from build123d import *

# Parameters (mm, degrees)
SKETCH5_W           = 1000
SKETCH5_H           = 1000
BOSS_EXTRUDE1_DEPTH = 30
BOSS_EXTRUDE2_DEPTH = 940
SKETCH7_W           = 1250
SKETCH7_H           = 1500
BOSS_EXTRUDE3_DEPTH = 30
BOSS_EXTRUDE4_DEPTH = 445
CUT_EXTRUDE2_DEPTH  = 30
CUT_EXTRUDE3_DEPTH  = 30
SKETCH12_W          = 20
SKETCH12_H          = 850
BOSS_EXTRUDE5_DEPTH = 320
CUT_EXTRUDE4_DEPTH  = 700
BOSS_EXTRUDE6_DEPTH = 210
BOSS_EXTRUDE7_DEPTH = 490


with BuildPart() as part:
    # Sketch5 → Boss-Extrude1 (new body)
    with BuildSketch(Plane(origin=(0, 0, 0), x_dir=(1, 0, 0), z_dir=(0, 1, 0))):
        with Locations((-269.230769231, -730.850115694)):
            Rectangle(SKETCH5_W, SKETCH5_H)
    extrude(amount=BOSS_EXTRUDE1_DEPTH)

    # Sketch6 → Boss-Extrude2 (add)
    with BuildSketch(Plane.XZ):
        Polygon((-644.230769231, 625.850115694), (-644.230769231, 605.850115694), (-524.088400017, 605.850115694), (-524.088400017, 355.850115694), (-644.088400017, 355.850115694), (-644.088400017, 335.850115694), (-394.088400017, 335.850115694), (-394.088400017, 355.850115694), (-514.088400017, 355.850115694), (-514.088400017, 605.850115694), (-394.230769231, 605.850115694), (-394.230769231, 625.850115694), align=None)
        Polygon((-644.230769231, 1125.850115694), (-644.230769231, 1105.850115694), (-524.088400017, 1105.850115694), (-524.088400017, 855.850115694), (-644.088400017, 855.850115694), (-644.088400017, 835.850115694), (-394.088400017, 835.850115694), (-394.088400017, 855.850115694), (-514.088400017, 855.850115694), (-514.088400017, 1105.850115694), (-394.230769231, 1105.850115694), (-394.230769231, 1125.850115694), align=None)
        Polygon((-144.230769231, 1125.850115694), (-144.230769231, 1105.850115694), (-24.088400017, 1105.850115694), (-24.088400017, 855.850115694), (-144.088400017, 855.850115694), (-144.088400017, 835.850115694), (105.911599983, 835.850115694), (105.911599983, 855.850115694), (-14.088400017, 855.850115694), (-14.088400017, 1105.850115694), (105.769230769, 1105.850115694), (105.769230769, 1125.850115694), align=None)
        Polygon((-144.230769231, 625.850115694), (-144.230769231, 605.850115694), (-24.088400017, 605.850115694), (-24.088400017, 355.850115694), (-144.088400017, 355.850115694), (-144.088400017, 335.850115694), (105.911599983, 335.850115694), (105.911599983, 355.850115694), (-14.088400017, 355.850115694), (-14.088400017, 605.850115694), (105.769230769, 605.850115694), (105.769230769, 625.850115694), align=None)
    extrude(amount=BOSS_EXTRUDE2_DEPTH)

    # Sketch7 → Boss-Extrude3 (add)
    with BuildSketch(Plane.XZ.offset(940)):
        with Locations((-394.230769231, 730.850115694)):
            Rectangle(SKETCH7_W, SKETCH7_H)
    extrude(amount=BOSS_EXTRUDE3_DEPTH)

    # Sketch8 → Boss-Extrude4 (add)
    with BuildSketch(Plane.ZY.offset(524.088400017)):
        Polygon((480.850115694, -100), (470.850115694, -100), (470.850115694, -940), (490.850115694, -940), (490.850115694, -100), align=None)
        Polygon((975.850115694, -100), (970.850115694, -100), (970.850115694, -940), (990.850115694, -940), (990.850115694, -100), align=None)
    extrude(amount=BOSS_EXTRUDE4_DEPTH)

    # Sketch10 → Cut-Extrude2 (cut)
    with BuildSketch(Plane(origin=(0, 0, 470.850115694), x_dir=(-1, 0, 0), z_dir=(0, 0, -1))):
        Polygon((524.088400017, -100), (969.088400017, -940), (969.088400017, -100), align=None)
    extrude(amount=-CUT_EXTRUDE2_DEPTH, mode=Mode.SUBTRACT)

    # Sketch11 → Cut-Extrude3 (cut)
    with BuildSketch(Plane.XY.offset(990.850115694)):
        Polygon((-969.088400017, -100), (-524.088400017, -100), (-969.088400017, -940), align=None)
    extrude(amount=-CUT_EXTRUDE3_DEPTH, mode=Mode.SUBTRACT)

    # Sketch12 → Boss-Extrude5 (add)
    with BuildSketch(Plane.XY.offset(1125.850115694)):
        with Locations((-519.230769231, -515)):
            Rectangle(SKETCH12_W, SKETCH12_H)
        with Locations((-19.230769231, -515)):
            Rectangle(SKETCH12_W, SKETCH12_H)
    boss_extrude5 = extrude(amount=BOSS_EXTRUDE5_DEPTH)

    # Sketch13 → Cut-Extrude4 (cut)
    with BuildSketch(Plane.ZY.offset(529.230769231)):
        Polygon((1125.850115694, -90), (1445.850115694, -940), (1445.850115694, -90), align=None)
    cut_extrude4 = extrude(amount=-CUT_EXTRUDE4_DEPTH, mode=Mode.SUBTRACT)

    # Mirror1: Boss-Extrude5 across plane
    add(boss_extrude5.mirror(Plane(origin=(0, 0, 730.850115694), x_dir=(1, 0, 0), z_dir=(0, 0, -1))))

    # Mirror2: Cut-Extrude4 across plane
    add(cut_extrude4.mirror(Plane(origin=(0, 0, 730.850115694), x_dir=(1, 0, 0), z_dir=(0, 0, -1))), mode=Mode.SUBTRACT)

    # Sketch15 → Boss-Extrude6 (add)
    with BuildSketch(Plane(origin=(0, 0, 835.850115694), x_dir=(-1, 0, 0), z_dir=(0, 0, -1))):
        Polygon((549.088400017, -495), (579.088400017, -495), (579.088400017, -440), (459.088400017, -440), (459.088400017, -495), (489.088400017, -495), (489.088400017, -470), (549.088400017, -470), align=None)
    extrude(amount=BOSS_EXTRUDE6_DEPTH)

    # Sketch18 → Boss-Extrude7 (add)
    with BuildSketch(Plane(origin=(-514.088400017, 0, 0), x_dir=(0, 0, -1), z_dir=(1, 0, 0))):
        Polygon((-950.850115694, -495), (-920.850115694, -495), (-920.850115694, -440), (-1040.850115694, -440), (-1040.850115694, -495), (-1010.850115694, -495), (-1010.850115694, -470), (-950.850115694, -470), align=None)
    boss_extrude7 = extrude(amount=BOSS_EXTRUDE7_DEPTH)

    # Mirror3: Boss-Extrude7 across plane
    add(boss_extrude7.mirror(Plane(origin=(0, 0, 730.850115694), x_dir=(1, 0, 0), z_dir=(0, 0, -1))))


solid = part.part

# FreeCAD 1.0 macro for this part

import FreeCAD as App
import Part
import Sketcher
from FreeCAD import Vector
Q = App.Units.Quantity

doc = App.newDocument("Part")
body = doc.addObject("PartDesign::Body", "Body")

# Sketch on XZ plane
sketch1 = body.newObject("Sketcher::SketchObject", "Sketch")
sketch1.AttachmentSupport = (doc.getObject("XZ_Plane"), [""])
sketch1.MapMode = "FlatFace"
sketch1.addGeometry(Part.LineSegment(Vector(-769.230769, 230.850116, 0), Vector(-769.230769, 1230.850116, 0)), False)
sketch1.addGeometry(Part.LineSegment(Vector(-769.230769, 1230.850116, 0), Vector(230.769231, 1230.850116, 0)), False)
sketch1.addGeometry(Part.LineSegment(Vector(230.769231, 1230.850116, 0), Vector(230.769231, 230.850116, 0)), False)
sketch1.addGeometry(Part.LineSegment(Vector(230.769231, 230.850116, 0), Vector(-769.230769, 230.850116, 0)), False)
sketch1.addConstraint(Sketcher.Constraint("Coincident", 0, 2, 1, 1))
sketch1.addConstraint(Sketcher.Constraint("Coincident", 1, 2, 2, 1))
sketch1.addConstraint(Sketcher.Constraint("Coincident", 2, 2, 3, 1))
sketch1.addConstraint(Sketcher.Constraint("Coincident", 3, 2, 0, 1))
sketch1.addConstraint(Sketcher.Constraint("Vertical", 0))
sketch1.addConstraint(Sketcher.Constraint("Horizontal", 1))
sketch1.addConstraint(Sketcher.Constraint("Vertical", 2))
sketch1.addConstraint(Sketcher.Constraint("Horizontal", 3))
sketch1.addConstraint(Sketcher.Constraint("Equal", 3, 0))
sketch1.addConstraint(Sketcher.Constraint("DistanceX", 1, 1, 1, 2, Q("1000 mm")))
sketch1.addConstraint(Sketcher.Constraint("DistanceX", 0, 2, -1, 1, Q("769.230769 mm")))
sketch1.addConstraint(Sketcher.Constraint("DistanceY", -1, 1, 0, 2, Q("1230.850116 mm")))
pad1 = body.newObject("PartDesign::Pad", "Pad")
pad1.Profile = sketch1
pad1.Length = 30
pad1.Reversed = True

# Sketch on XZ plane
sketch2 = body.newObject("Sketcher::SketchObject", "Sketch001")
sketch2.AttachmentSupport = (doc.getObject("XZ_Plane"), [""])
sketch2.MapMode = "FlatFace"
sketch2.addGeometry(Part.LineSegment(Vector(-644.230769, 625.850116, 0), Vector(-644.230769, 605.850116, 0)), False)
sketch2.addGeometry(Part.LineSegment(Vector(-644.230769, 605.850116, 0), Vector(-524.0884, 605.850116, 0)), False)
sketch2.addGeometry(Part.LineSegment(Vector(-524.0884, 605.850116, 0), Vector(-524.0884, 355.850116, 0)), False)
sketch2.addGeometry(Part.LineSegment(Vector(-524.0884, 355.850116, 0), Vector(-644.0884, 355.850116, 0)), False)
sketch2.addGeometry(Part.LineSegment(Vector(-644.0884, 355.850116, 0), Vector(-644.0884, 335.850116, 0)), False)
sketch2.addGeometry(Part.LineSegment(Vector(-644.0884, 335.850116, 0), Vector(-394.0884, 335.850116, 0)), False)
sketch2.addGeometry(Part.LineSegment(Vector(-394.0884, 335.850116, 0), Vector(-394.0884, 355.850116, 0)), False)
sketch2.addGeometry(Part.LineSegment(Vector(-394.0884, 355.850116, 0), Vector(-514.0884, 355.850116, 0)), False)
sketch2.addGeometry(Part.LineSegment(Vector(-514.0884, 355.850116, 0), Vector(-514.0884, 605.850116, 0)), False)
sketch2.addGeometry(Part.LineSegment(Vector(-514.0884, 605.850116, 0), Vector(-394.230769, 605.850116, 0)), False)
sketch2.addGeometry(Part.LineSegment(Vector(-394.230769, 605.850116, 0), Vector(-394.230769, 625.850116, 0)), False)
sketch2.addGeometry(Part.LineSegment(Vector(-394.230769, 625.850116, 0), Vector(-644.230769, 625.850116, 0)), False)
sketch2.addGeometry(Part.LineSegment(Vector(-644.230769, 1125.850116, 0), Vector(-644.230769, 1105.850116, 0)), False)
sketch2.addGeometry(Part.LineSegment(Vector(-644.230769, 1105.850116, 0), Vector(-524.0884, 1105.850116, 0)), False)
sketch2.addGeometry(Part.LineSegment(Vector(-524.0884, 1105.850116, 0), Vector(-524.0884, 855.850116, 0)), False)
sketch2.addGeometry(Part.LineSegment(Vector(-524.0884, 855.850116, 0), Vector(-644.0884, 855.850116, 0)), False)
sketch2.addGeometry(Part.LineSegment(Vector(-644.0884, 855.850116, 0), Vector(-644.0884, 835.850116, 0)), False)
sketch2.addGeometry(Part.LineSegment(Vector(-644.0884, 835.850116, 0), Vector(-394.0884, 835.850116, 0)), False)
sketch2.addGeometry(Part.LineSegment(Vector(-394.0884, 835.850116, 0), Vector(-394.0884, 855.850116, 0)), False)
sketch2.addGeometry(Part.LineSegment(Vector(-394.0884, 855.850116, 0), Vector(-514.0884, 855.850116, 0)), False)
sketch2.addGeometry(Part.LineSegment(Vector(-514.0884, 855.850116, 0), Vector(-514.0884, 1105.850116, 0)), False)
sketch2.addGeometry(Part.LineSegment(Vector(-514.0884, 1105.850116, 0), Vector(-394.230769, 1105.850116, 0)), False)
sketch2.addGeometry(Part.LineSegment(Vector(-394.230769, 1105.850116, 0), Vector(-394.230769, 1125.850116, 0)), False)
sketch2.addGeometry(Part.LineSegment(Vector(-394.230769, 1125.850116, 0), Vector(-644.230769, 1125.850116, 0)), False)
sketch2.addGeometry(Part.LineSegment(Vector(-144.230769, 1125.850116, 0), Vector(-144.230769, 1105.850116, 0)), False)
sketch2.addGeometry(Part.LineSegment(Vector(-144.230769, 1105.850116, 0), Vector(-24.0884, 1105.850116, 0)), False)
sketch2.addGeometry(Part.LineSegment(Vector(-24.0884, 1105.850116, 0), Vector(-24.0884, 855.850116, 0)), False)
sketch2.addGeometry(Part.LineSegment(Vector(-24.0884, 855.850116, 0), Vector(-144.0884, 855.850116, 0)), False)
sketch2.addGeometry(Part.LineSegment(Vector(-144.0884, 855.850116, 0), Vector(-144.0884, 835.850116, 0)), False)
sketch2.addGeometry(Part.LineSegment(Vector(-144.0884, 835.850116, 0), Vector(105.9116, 835.850116, 0)), False)
sketch2.addGeometry(Part.LineSegment(Vector(105.9116, 835.850116, 0), Vector(105.9116, 855.850116, 0)), False)
sketch2.addGeometry(Part.LineSegment(Vector(105.9116, 855.850116, 0), Vector(-14.0884, 855.850116, 0)), False)
sketch2.addGeometry(Part.LineSegment(Vector(-14.0884, 855.850116, 0), Vector(-14.0884, 1105.850116, 0)), False)
sketch2.addGeometry(Part.LineSegment(Vector(-14.0884, 1105.850116, 0), Vector(105.769231, 1105.850116, 0)), False)
sketch2.addGeometry(Part.LineSegment(Vector(105.769231, 1105.850116, 0), Vector(105.769231, 1125.850116, 0)), False)
sketch2.addGeometry(Part.LineSegment(Vector(105.769231, 1125.850116, 0), Vector(-144.230769, 1125.850116, 0)), False)
sketch2.addGeometry(Part.LineSegment(Vector(-144.230769, 625.850116, 0), Vector(-144.230769, 605.850116, 0)), False)
sketch2.addGeometry(Part.LineSegment(Vector(-144.230769, 605.850116, 0), Vector(-24.0884, 605.850116, 0)), False)
sketch2.addGeometry(Part.LineSegment(Vector(-24.0884, 605.850116, 0), Vector(-24.0884, 355.850116, 0)), False)
sketch2.addGeometry(Part.LineSegment(Vector(-24.0884, 355.850116, 0), Vector(-144.0884, 355.850116, 0)), False)
sketch2.addGeometry(Part.LineSegment(Vector(-144.0884, 355.850116, 0), Vector(-144.0884, 335.850116, 0)), False)
sketch2.addGeometry(Part.LineSegment(Vector(-144.0884, 335.850116, 0), Vector(105.9116, 335.850116, 0)), False)
sketch2.addGeometry(Part.LineSegment(Vector(105.9116, 335.850116, 0), Vector(105.9116, 355.850116, 0)), False)
sketch2.addGeometry(Part.LineSegment(Vector(105.9116, 355.850116, 0), Vector(-14.0884, 355.850116, 0)), False)
sketch2.addGeometry(Part.LineSegment(Vector(-14.0884, 355.850116, 0), Vector(-14.0884, 605.850116, 0)), False)
sketch2.addGeometry(Part.LineSegment(Vector(-14.0884, 605.850116, 0), Vector(105.769231, 605.850116, 0)), False)
sketch2.addGeometry(Part.LineSegment(Vector(105.769231, 605.850116, 0), Vector(105.769231, 625.850116, 0)), False)
sketch2.addGeometry(Part.LineSegment(Vector(105.769231, 625.850116, 0), Vector(-144.230769, 625.850116, 0)), False)
sketch2.addConstraint(Sketcher.Constraint("Coincident", 0, 2, 1, 1))
sketch2.addConstraint(Sketcher.Constraint("Coincident", 1, 2, 2, 1))
sketch2.addConstraint(Sketcher.Constraint("Coincident", 2, 2, 3, 1))
sketch2.addConstraint(Sketcher.Constraint("Coincident", 3, 2, 4, 1))
sketch2.addConstraint(Sketcher.Constraint("Coincident", 4, 2, 5, 1))
sketch2.addConstraint(Sketcher.Constraint("Coincident", 5, 2, 6, 1))
sketch2.addConstraint(Sketcher.Constraint("Coincident", 6, 2, 7, 1))
sketch2.addConstraint(Sketcher.Constraint("Coincident", 7, 2, 8, 1))
sketch2.addConstraint(Sketcher.Constraint("Coincident", 8, 2, 9, 1))
sketch2.addConstraint(Sketcher.Constraint("Coincident", 9, 2, 10, 1))
sketch2.addConstraint(Sketcher.Constraint("Coincident", 10, 2, 11, 1))
sketch2.addConstraint(Sketcher.Constraint("Coincident", 11, 2, 0, 1))
sketch2.addConstraint(Sketcher.Constraint("Coincident", 12, 2, 13, 1))
sketch2.addConstraint(Sketcher.Constraint("Coincident", 13, 2, 14, 1))
sketch2.addConstraint(Sketcher.Constraint("Coincident", 14, 2, 15, 1))
sketch2.addConstraint(Sketcher.Constraint("Coincident", 15, 2, 16, 1))
sketch2.addConstraint(Sketcher.Constraint("Coincident", 16, 2, 17, 1))
sketch2.addConstraint(Sketcher.Constraint("Coincident", 17, 2, 18, 1))
sketch2.addConstraint(Sketcher.Constraint("Coincident", 18, 2, 19, 1))
sketch2.addConstraint(Sketcher.Constraint("Coincident", 19, 2, 20, 1))
sketch2.addConstraint(Sketcher.Constraint("Coincident", 20, 2, 21, 1))
sketch2.addConstraint(Sketcher.Constraint("Coincident", 21, 2, 22, 1))
sketch2.addConstraint(Sketcher.Constraint("Coincident", 22, 2, 23, 1))
sketch2.addConstraint(Sketcher.Constraint("Coincident", 23, 2, 12, 1))
sketch2.addConstraint(Sketcher.Constraint("Coincident", 24, 2, 25, 1))
sketch2.addConstraint(Sketcher.Constraint("Coincident", 25, 2, 26, 1))
sketch2.addConstraint(Sketcher.Constraint("Coincident", 26, 2, 27, 1))
sketch2.addConstraint(Sketcher.Constraint("Coincident", 27, 2, 28, 1))
sketch2.addConstraint(Sketcher.Constraint("Coincident", 28, 2, 29, 1))
sketch2.addConstraint(Sketcher.Constraint("Coincident", 29, 2, 30, 1))
sketch2.addConstraint(Sketcher.Constraint("Coincident", 30, 2, 31, 1))
sketch2.addConstraint(Sketcher.Constraint("Coincident", 31, 2, 32, 1))
sketch2.addConstraint(Sketcher.Constraint("Coincident", 32, 2, 33, 1))
sketch2.addConstraint(Sketcher.Constraint("Coincident", 33, 2, 34, 1))
sketch2.addConstraint(Sketcher.Constraint("Coincident", 34, 2, 35, 1))
sketch2.addConstraint(Sketcher.Constraint("Coincident", 35, 2, 24, 1))
sketch2.addConstraint(Sketcher.Constraint("Coincident", 36, 2, 37, 1))
sketch2.addConstraint(Sketcher.Constraint("Coincident", 37, 2, 38, 1))
sketch2.addConstraint(Sketcher.Constraint("Coincident", 38, 2, 39, 1))
sketch2.addConstraint(Sketcher.Constraint("Coincident", 39, 2, 40, 1))
sketch2.addConstraint(Sketcher.Constraint("Coincident", 40, 2, 41, 1))
sketch2.addConstraint(Sketcher.Constraint("Coincident", 41, 2, 42, 1))
sketch2.addConstraint(Sketcher.Constraint("Coincident", 42, 2, 43, 1))
sketch2.addConstraint(Sketcher.Constraint("Coincident", 43, 2, 44, 1))
sketch2.addConstraint(Sketcher.Constraint("Coincident", 44, 2, 45, 1))
sketch2.addConstraint(Sketcher.Constraint("Coincident", 45, 2, 46, 1))
sketch2.addConstraint(Sketcher.Constraint("Coincident", 46, 2, 47, 1))
sketch2.addConstraint(Sketcher.Constraint("Coincident", 47, 2, 36, 1))
sketch2.addConstraint(Sketcher.Constraint("Vertical", 0))
sketch2.addConstraint(Sketcher.Constraint("Horizontal", 1))
sketch2.addConstraint(Sketcher.Constraint("Vertical", 2))
sketch2.addConstraint(Sketcher.Constraint("Horizontal", 3))
sketch2.addConstraint(Sketcher.Constraint("Vertical", 4))
sketch2.addConstraint(Sketcher.Constraint("Horizontal", 5))
sketch2.addConstraint(Sketcher.Constraint("Vertical", 6))
sketch2.addConstraint(Sketcher.Constraint("Horizontal", 7))
sketch2.addConstraint(Sketcher.Constraint("Vertical", 8))
sketch2.addConstraint(Sketcher.Constraint("Horizontal", 9))
sketch2.addConstraint(Sketcher.Constraint("Vertical", 10))
sketch2.addConstraint(Sketcher.Constraint("Horizontal", 11))
sketch2.addConstraint(Sketcher.Constraint("Vertical", 12))
sketch2.addConstraint(Sketcher.Constraint("Horizontal", 13))
sketch2.addConstraint(Sketcher.Constraint("Vertical", 14))
sketch2.addConstraint(Sketcher.Constraint("Horizontal", 15))
sketch2.addConstraint(Sketcher.Constraint("Vertical", 16))
sketch2.addConstraint(Sketcher.Constraint("Horizontal", 17))
sketch2.addConstraint(Sketcher.Constraint("Vertical", 18))
sketch2.addConstraint(Sketcher.Constraint("Horizontal", 19))
sketch2.addConstraint(Sketcher.Constraint("Vertical", 20))
sketch2.addConstraint(Sketcher.Constraint("Horizontal", 21))
sketch2.addConstraint(Sketcher.Constraint("Vertical", 22))
sketch2.addConstraint(Sketcher.Constraint("Horizontal", 23))
sketch2.addConstraint(Sketcher.Constraint("Vertical", 24))
sketch2.addConstraint(Sketcher.Constraint("Horizontal", 25))
sketch2.addConstraint(Sketcher.Constraint("Vertical", 26))
sketch2.addConstraint(Sketcher.Constraint("Horizontal", 27))
sketch2.addConstraint(Sketcher.Constraint("Vertical", 28))
sketch2.addConstraint(Sketcher.Constraint("Horizontal", 29))
sketch2.addConstraint(Sketcher.Constraint("Vertical", 30))
sketch2.addConstraint(Sketcher.Constraint("Horizontal", 31))
sketch2.addConstraint(Sketcher.Constraint("Vertical", 32))
sketch2.addConstraint(Sketcher.Constraint("Horizontal", 33))
sketch2.addConstraint(Sketcher.Constraint("Vertical", 34))
sketch2.addConstraint(Sketcher.Constraint("Horizontal", 35))
sketch2.addConstraint(Sketcher.Constraint("Vertical", 36))
sketch2.addConstraint(Sketcher.Constraint("Horizontal", 37))
sketch2.addConstraint(Sketcher.Constraint("Vertical", 38))
sketch2.addConstraint(Sketcher.Constraint("Horizontal", 39))
sketch2.addConstraint(Sketcher.Constraint("Vertical", 40))
sketch2.addConstraint(Sketcher.Constraint("Horizontal", 41))
sketch2.addConstraint(Sketcher.Constraint("Vertical", 42))
sketch2.addConstraint(Sketcher.Constraint("Horizontal", 43))
sketch2.addConstraint(Sketcher.Constraint("Vertical", 44))
sketch2.addConstraint(Sketcher.Constraint("Horizontal", 45))
sketch2.addConstraint(Sketcher.Constraint("Vertical", 46))
sketch2.addConstraint(Sketcher.Constraint("Horizontal", 47))
sketch2.addConstraint(Sketcher.Constraint("Horizontal", 3, 2, 6, 2))
sketch2.addConstraint(Sketcher.Constraint("Horizontal", 1, 2, 8, 2))
sketch2.addConstraint(Sketcher.Constraint("Horizontal", 15, 2, 18, 2))
sketch2.addConstraint(Sketcher.Constraint("Horizontal", 13, 2, 20, 2))
sketch2.addConstraint(Sketcher.Constraint("Horizontal", 21, 2, 24, 2))
sketch2.addConstraint(Sketcher.Constraint("Horizontal", 19, 2, 26, 2))
sketch2.addConstraint(Sketcher.Constraint("Horizontal", 17, 2, 28, 2))
sketch2.addConstraint(Sketcher.Constraint("Horizontal", 27, 2, 30, 2))
sketch2.addConstraint(Sketcher.Constraint("Horizontal", 25, 2, 32, 2))
sketch2.addConstraint(Sketcher.Constraint("Horizontal", 23, 2, 34, 2))
sketch2.addConstraint(Sketcher.Constraint("Horizontal", 9, 2, 36, 2))
sketch2.addConstraint(Sketcher.Constraint("Horizontal", 7, 2, 38, 2))
sketch2.addConstraint(Sketcher.Constraint("Horizontal", 5, 2, 40, 2))
sketch2.addConstraint(Sketcher.Constraint("Horizontal", 39, 2, 42, 2))
sketch2.addConstraint(Sketcher.Constraint("Horizontal", 37, 2, 44, 2))
sketch2.addConstraint(Sketcher.Constraint("Horizontal", 11, 2, 46, 2))
sketch2.addConstraint(Sketcher.Constraint("Vertical", 11, 2, 12, 2))
sketch2.addConstraint(Sketcher.Constraint("Vertical", 2, 2, 13, 2))
sketch2.addConstraint(Sketcher.Constraint("Vertical", 4, 2, 15, 2))
sketch2.addConstraint(Sketcher.Constraint("Vertical", 6, 2, 17, 2))
sketch2.addConstraint(Sketcher.Constraint("Vertical", 8, 2, 19, 2))
sketch2.addConstraint(Sketcher.Constraint("Vertical", 10, 2, 21, 2))
sketch2.addConstraint(Sketcher.Constraint("Vertical", 35, 2, 36, 2))
sketch2.addConstraint(Sketcher.Constraint("Vertical", 26, 2, 37, 2))
sketch2.addConstraint(Sketcher.Constraint("Vertical", 28, 2, 39, 2))
sketch2.addConstraint(Sketcher.Constraint("Vertical", 30, 2, 41, 2))
sketch2.addConstraint(Sketcher.Constraint("Vertical", 32, 2, 43, 2))
sketch2.addConstraint(Sketcher.Constraint("Vertical", 34, 2, 45, 2))
sketch2.addConstraint(Sketcher.Constraint("Equal", 3, 7))
sketch2.addConstraint(Sketcher.Constraint("Equal", 5, 11))
sketch2.addConstraint(Sketcher.Constraint("Equal", 13, 25))
sketch2.addConstraint(Sketcher.Constraint("Equal", 19, 27))
sketch2.addConstraint(Sketcher.Constraint("Equal", 23, 29))
sketch2.addConstraint(Sketcher.Constraint("Equal", 27, 31))
sketch2.addConstraint(Sketcher.Constraint("Equal", 21, 33))
sketch2.addConstraint(Sketcher.Constraint("Equal", 47, 2))
sketch2.addConstraint(Sketcher.Constraint("Equal", 0, 4))
sketch2.addConstraint(Sketcher.Constraint("Equal", 10, 12))
sketch2.addConstraint(Sketcher.Constraint("Equal", 8, 14))
sketch2.addConstraint(Sketcher.Constraint("Equal", 12, 16))
sketch2.addConstraint(Sketcher.Constraint("DistanceX", 3, 2, 3, 1, Q("120 mm")))
sketch2.addConstraint(Sketcher.Constraint("DistanceX", 5, 1, 5, 2, Q("250 mm")))
sketch2.addConstraint(Sketcher.Constraint("DistanceY", 0, 2, 0, 1, Q("20 mm")))
sketch2.addConstraint(Sketcher.Constraint("DistanceY", 11, 2, 12, 2, Q("480 mm")))
sketch2.addConstraint(Sketcher.Constraint("DistanceX", 21, 2, 24, 2, Q("250 mm")))
sketch2.addConstraint(Sketcher.Constraint("DistanceX", 1, 1, 1, 2, Q("120.142369 mm")))
sketch2.addConstraint(Sketcher.Constraint("DistanceX", 1, 2, -1, 1, Q("524.0884 mm")))
sketch2.addConstraint(Sketcher.Constraint("DistanceY", -1, 1, 0, 2, Q("605.850116 mm")))
pad2 = body.newObject("PartDesign::Pad", "Pad001")
pad2.Profile = sketch2
pad2.Length = 940

# Sketch on XZ plane
sketch3 = body.newObject("Sketcher::SketchObject", "Sketch002")
sketch3.AttachmentSupport = (doc.getObject("XZ_Plane"), [""])
sketch3.MapMode = "FlatFace"
sketch3.AttachmentOffset = App.Placement(Vector(0, 0, 940), App.Rotation())
sketch3.addGeometry(Part.LineSegment(Vector(-1019.230769, 1480.850116, 0), Vector(-1019.230769, -19.149884, 0)), False)
sketch3.addGeometry(Part.LineSegment(Vector(-1019.230769, -19.149884, 0), Vector(230.769231, -19.149884, 0)), False)
sketch3.addGeometry(Part.LineSegment(Vector(230.769231, -19.149884, 0), Vector(230.769231, 1480.850116, 0)), False)
sketch3.addGeometry(Part.LineSegment(Vector(230.769231, 1480.850116, 0), Vector(-1019.230769, 1480.850116, 0)), False)
sketch3.addConstraint(Sketcher.Constraint("Coincident", 0, 2, 1, 1))
sketch3.addConstraint(Sketcher.Constraint("Coincident", 1, 2, 2, 1))
sketch3.addConstraint(Sketcher.Constraint("Coincident", 2, 2, 3, 1))
sketch3.addConstraint(Sketcher.Constraint("Coincident", 3, 2, 0, 1))
sketch3.addConstraint(Sketcher.Constraint("Vertical", 0))
sketch3.addConstraint(Sketcher.Constraint("Horizontal", 1))
sketch3.addConstraint(Sketcher.Constraint("Vertical", 2))
sketch3.addConstraint(Sketcher.Constraint("Horizontal", 3))
sketch3.addConstraint(Sketcher.Constraint("DistanceX", 1, 1, 1, 2, Q("1250 mm")))
sketch3.addConstraint(Sketcher.Constraint("DistanceY", 0, 2, 0, 1, Q("1500 mm")))
sketch3.addConstraint(Sketcher.Constraint("DistanceX", 0, 2, -1, 1, Q("1019.230769 mm")))
sketch3.addConstraint(Sketcher.Constraint("DistanceY", 0, 2, -1, 1, Q("19.149884 mm")))
pad3 = body.newObject("PartDesign::Pad", "Pad002")
pad3.Profile = sketch3
pad3.Length = 30

# Sketch on YZ plane
sketch4 = body.newObject("Sketcher::SketchObject", "Sketch003")
sketch4.AttachmentSupport = (doc.getObject("YZ_Plane"), [""])
sketch4.MapMode = "FlatFace"
sketch4.AttachmentOffset = App.Placement(Vector(0, 0, -524.0884), App.Rotation())
sketch4.addGeometry(Part.LineSegment(Vector(-100, 470.850116, 0), Vector(-940, 470.850116, 0)), False)
sketch4.addGeometry(Part.LineSegment(Vector(-940, 470.850116, 0), Vector(-940, 490.850116, 0)), False)
sketch4.addGeometry(Part.LineSegment(Vector(-940, 490.850116, 0), Vector(-100, 490.850116, 0)), False)
sketch4.addGeometry(Part.LineSegment(Vector(-100, 490.850116, 0), Vector(-100, 470.850116, 0)), False)
sketch4.addGeometry(Part.LineSegment(Vector(-100, 970.850116, 0), Vector(-940, 970.850116, 0)), False)
sketch4.addGeometry(Part.LineSegment(Vector(-940, 970.850116, 0), Vector(-940, 990.850116, 0)), False)
sketch4.addGeometry(Part.LineSegment(Vector(-940, 990.850116, 0), Vector(-100, 990.850116, 0)), False)
sketch4.addGeometry(Part.LineSegment(Vector(-100, 990.850116, 0), Vector(-100, 970.850116, 0)), False)
sketch4.addConstraint(Sketcher.Constraint("Coincident", 0, 2, 1, 1))
sketch4.addConstraint(Sketcher.Constraint("Coincident", 1, 2, 2, 1))
sketch4.addConstraint(Sketcher.Constraint("Coincident", 2, 2, 3, 1))
sketch4.addConstraint(Sketcher.Constraint("Coincident", 3, 2, 0, 1))
sketch4.addConstraint(Sketcher.Constraint("Coincident", 4, 2, 5, 1))
sketch4.addConstraint(Sketcher.Constraint("Coincident", 5, 2, 6, 1))
sketch4.addConstraint(Sketcher.Constraint("Coincident", 6, 2, 7, 1))
sketch4.addConstraint(Sketcher.Constraint("Coincident", 7, 2, 4, 1))
sketch4.addConstraint(Sketcher.Constraint("Horizontal", 0))
sketch4.addConstraint(Sketcher.Constraint("Vertical", 1))
sketch4.addConstraint(Sketcher.Constraint("Horizontal", 2))
sketch4.addConstraint(Sketcher.Constraint("Vertical", 3))
sketch4.addConstraint(Sketcher.Constraint("Horizontal", 4))
sketch4.addConstraint(Sketcher.Constraint("Vertical", 5))
sketch4.addConstraint(Sketcher.Constraint("Horizontal", 6))
sketch4.addConstraint(Sketcher.Constraint("Vertical", 7))
sketch4.addConstraint(Sketcher.Constraint("Vertical", 1, 2, 4, 2))
sketch4.addConstraint(Sketcher.Constraint("Vertical", 3, 2, 6, 2))
sketch4.addConstraint(Sketcher.Constraint("Equal", 3, 5))
sketch4.addConstraint(Sketcher.Constraint("DistanceX", 0, 2, 0, 1, Q("840 mm")))
sketch4.addConstraint(Sketcher.Constraint("DistanceY", 1, 1, 1, 2, Q("20 mm")))
sketch4.addConstraint(Sketcher.Constraint("DistanceX", 0, 2, -1, 1, Q("940 mm")))
sketch4.addConstraint(Sketcher.Constraint("DistanceY", 1, 2, 4, 2, Q("480 mm")))
sketch4.addConstraint(Sketcher.Constraint("DistanceY", -1, 1, 0, 2, Q("470.850116 mm")))
pad4 = body.newObject("PartDesign::Pad", "Pad003")
pad4.Profile = sketch4
pad4.Length = 445
pad4.Reversed = True

# Sketch on XY plane
sketch5 = body.newObject("Sketcher::SketchObject", "Sketch004")
sketch5.AttachmentSupport = (doc.getObject("XY_Plane"), [""])
sketch5.MapMode = "FlatFace"
sketch5.AttachmentOffset = App.Placement(Vector(0, 0, 470.850116), App.Rotation())
sketch5.addGeometry(Part.LineSegment(Vector(-524.0884, -100, 0), Vector(-969.0884, -940, 0)), False)
sketch5.addGeometry(Part.LineSegment(Vector(-969.0884, -940, 0), Vector(-969.0884, -100, 0)), False)
sketch5.addGeometry(Part.LineSegment(Vector(-969.0884, -100, 0), Vector(-524.0884, -100, 0)), False)
sketch5.addConstraint(Sketcher.Constraint("Coincident", 0, 2, 1, 1))
sketch5.addConstraint(Sketcher.Constraint("Coincident", 1, 2, 2, 1))
sketch5.addConstraint(Sketcher.Constraint("Coincident", 2, 2, 0, 1))
sketch5.addConstraint(Sketcher.Constraint("Vertical", 1))
sketch5.addConstraint(Sketcher.Constraint("Horizontal", 2))
sketch5.addConstraint(Sketcher.Constraint("DistanceX", 2, 1, 2, 2, Q("445 mm")))
sketch5.addConstraint(Sketcher.Constraint("DistanceY", 1, 1, 1, 2, Q("840 mm")))
sketch5.addConstraint(Sketcher.Constraint("DistanceY", 0, 2, -1, 1, Q("940 mm")))
sketch5.addConstraint(Sketcher.Constraint("DistanceX", 0, 2, -1, 1, Q("969.0884 mm")))
pocket1 = body.newObject("PartDesign::Pocket", "Pocket")
pocket1.Profile = sketch5
pocket1.Length = 30
pocket1.Reversed = True

# Sketch on XY plane
sketch6 = body.newObject("Sketcher::SketchObject", "Sketch005")
sketch6.AttachmentSupport = (doc.getObject("XY_Plane"), [""])
sketch6.MapMode = "FlatFace"
sketch6.AttachmentOffset = App.Placement(Vector(0, 0, 990.850116), App.Rotation())
sketch6.addGeometry(Part.LineSegment(Vector(-524.0884, -100, 0), Vector(-969.0884, -100, 0)), False)
sketch6.addGeometry(Part.LineSegment(Vector(-969.0884, -100, 0), Vector(-969.0884, -940, 0)), False)
sketch6.addGeometry(Part.LineSegment(Vector(-969.0884, -940, 0), Vector(-524.0884, -100, 0)), False)
sketch6.addConstraint(Sketcher.Constraint("Coincident", 0, 2, 1, 1))
sketch6.addConstraint(Sketcher.Constraint("Coincident", 1, 2, 2, 1))
sketch6.addConstraint(Sketcher.Constraint("Coincident", 2, 2, 0, 1))
sketch6.addConstraint(Sketcher.Constraint("Horizontal", 0))
sketch6.addConstraint(Sketcher.Constraint("Vertical", 1))
sketch6.addConstraint(Sketcher.Constraint("DistanceX", 0, 2, 0, 1, Q("445 mm")))
sketch6.addConstraint(Sketcher.Constraint("DistanceY", 1, 2, 1, 1, Q("840 mm")))
sketch6.addConstraint(Sketcher.Constraint("DistanceY", 0, 2, -1, 1, Q("100 mm")))
sketch6.addConstraint(Sketcher.Constraint("DistanceX", 0, 2, -1, 1, Q("969.0884 mm")))
pocket2 = body.newObject("PartDesign::Pocket", "Pocket001")
pocket2.Profile = sketch6
pocket2.Length = 30

# Sketch on XY plane
sketch7 = body.newObject("Sketcher::SketchObject", "Sketch006")
sketch7.AttachmentSupport = (doc.getObject("XY_Plane"), [""])
sketch7.MapMode = "FlatFace"
sketch7.AttachmentOffset = App.Placement(Vector(0, 0, 1125.850116), App.Rotation())
sketch7.addGeometry(Part.LineSegment(Vector(-529.230769, -90, 0), Vector(-529.230769, -940, 0)), False)
sketch7.addGeometry(Part.LineSegment(Vector(-529.230769, -940, 0), Vector(-509.230769, -940, 0)), False)
sketch7.addGeometry(Part.LineSegment(Vector(-509.230769, -940, 0), Vector(-509.230769, -90, 0)), False)
sketch7.addGeometry(Part.LineSegment(Vector(-509.230769, -90, 0), Vector(-529.230769, -90, 0)), False)
sketch7.addGeometry(Part.LineSegment(Vector(-29.230769, -90, 0), Vector(-29.230769, -940, 0)), False)
sketch7.addGeometry(Part.LineSegment(Vector(-29.230769, -940, 0), Vector(-9.230769, -940, 0)), False)
sketch7.addGeometry(Part.LineSegment(Vector(-9.230769, -940, 0), Vector(-9.230769, -90, 0)), False)
sketch7.addGeometry(Part.LineSegment(Vector(-9.230769, -90, 0), Vector(-29.230769, -90, 0)), False)
sketch7.addConstraint(Sketcher.Constraint("Coincident", 0, 2, 1, 1))
sketch7.addConstraint(Sketcher.Constraint("Coincident", 1, 2, 2, 1))
sketch7.addConstraint(Sketcher.Constraint("Coincident", 2, 2, 3, 1))
sketch7.addConstraint(Sketcher.Constraint("Coincident", 3, 2, 0, 1))
sketch7.addConstraint(Sketcher.Constraint("Coincident", 4, 2, 5, 1))
sketch7.addConstraint(Sketcher.Constraint("Coincident", 5, 2, 6, 1))
sketch7.addConstraint(Sketcher.Constraint("Coincident", 6, 2, 7, 1))
sketch7.addConstraint(Sketcher.Constraint("Coincident", 7, 2, 4, 1))
sketch7.addConstraint(Sketcher.Constraint("Vertical", 0))
sketch7.addConstraint(Sketcher.Constraint("Horizontal", 1))
sketch7.addConstraint(Sketcher.Constraint("Vertical", 2))
sketch7.addConstraint(Sketcher.Constraint("Horizontal", 3))
sketch7.addConstraint(Sketcher.Constraint("Vertical", 4))
sketch7.addConstraint(Sketcher.Constraint("Horizontal", 5))
sketch7.addConstraint(Sketcher.Constraint("Vertical", 6))
sketch7.addConstraint(Sketcher.Constraint("Horizontal", 7))
sketch7.addConstraint(Sketcher.Constraint("Horizontal", 1, 2, 4, 2))
sketch7.addConstraint(Sketcher.Constraint("Horizontal", 3, 2, 6, 2))
sketch7.addConstraint(Sketcher.Constraint("Equal", 3, 5))
sketch7.addConstraint(Sketcher.Constraint("DistanceX", 1, 1, 1, 2, Q("20 mm")))
sketch7.addConstraint(Sketcher.Constraint("DistanceY", 0, 2, 0, 1, Q("850 mm")))
sketch7.addConstraint(Sketcher.Constraint("DistanceY", 0, 2, -1, 1, Q("940 mm")))
sketch7.addConstraint(Sketcher.Constraint("DistanceX", 1, 2, 4, 2, Q("480 mm")))
sketch7.addConstraint(Sketcher.Constraint("DistanceX", 0, 2, -1, 1, Q("529.230769 mm")))
pad5 = body.newObject("PartDesign::Pad", "Pad004")
pad5.Profile = sketch7
pad5.Length = 320

# Sketch on YZ plane
sketch8 = body.newObject("Sketcher::SketchObject", "Sketch007")
sketch8.AttachmentSupport = (doc.getObject("YZ_Plane"), [""])
sketch8.MapMode = "FlatFace"
sketch8.AttachmentOffset = App.Placement(Vector(0, 0, -529.230769), App.Rotation())
sketch8.addGeometry(Part.LineSegment(Vector(-90, 1125.850116, 0), Vector(-940, 1445.850116, 0)), False)
sketch8.addGeometry(Part.LineSegment(Vector(-940, 1445.850116, 0), Vector(-90, 1445.850116, 0)), False)
sketch8.addGeometry(Part.LineSegment(Vector(-90, 1445.850116, 0), Vector(-90, 1125.850116, 0)), False)
sketch8.addConstraint(Sketcher.Constraint("Coincident", 0, 2, 1, 1))
sketch8.addConstraint(Sketcher.Constraint("Coincident", 1, 2, 2, 1))
sketch8.addConstraint(Sketcher.Constraint("Coincident", 2, 2, 0, 1))
sketch8.addConstraint(Sketcher.Constraint("Horizontal", 1))
sketch8.addConstraint(Sketcher.Constraint("Vertical", 2))
sketch8.addConstraint(Sketcher.Constraint("DistanceX", 1, 1, 1, 2, Q("850 mm")))
sketch8.addConstraint(Sketcher.Constraint("DistanceY", 2, 2, 2, 1, Q("320 mm")))
sketch8.addConstraint(Sketcher.Constraint("DistanceX", 0, 2, -1, 1, Q("940 mm")))
sketch8.addConstraint(Sketcher.Constraint("DistanceY", -1, 1, 0, 2, Q("1445.850116 mm")))
pocket3 = body.newObject("PartDesign::Pocket", "Pocket002")
pocket3.Profile = sketch8
pocket3.Length = 700
pocket3.Reversed = True
doc.recompute()

datumplane = body.newObject("PartDesign::Plane", "DatumPlane")
datumplane.AttachmentSupport = (doc.getObject("XY_Plane"), [""])
datumplane.MapMode = "FlatFace"
datumplane.AttachmentOffset = App.Placement(Vector(0, 0, 730.850116), App.Rotation())
mirrored = body.newObject("PartDesign::Mirrored", "Mirrored")
mirrored.Originals = [pad5]
mirrored.MirrorPlane = (datumplane, [""])
body.Tip = mirrored
doc.recompute()

datumplane2 = body.newObject("PartDesign::Plane", "DatumPlane001")
datumplane2.AttachmentSupport = (doc.getObject("XY_Plane"), [""])
datumplane2.MapMode = "FlatFace"
datumplane2.AttachmentOffset = App.Placement(Vector(0, 0, 730.850116), App.Rotation())
mirrored2 = body.newObject("PartDesign::Mirrored", "Mirrored001")
mirrored2.Originals = [pocket3]
mirrored2.MirrorPlane = (datumplane2, [""])
body.Tip = mirrored2

# Sketch on XY plane
sketch9 = body.newObject("Sketcher::SketchObject", "Sketch008")
sketch9.AttachmentSupport = (doc.getObject("XY_Plane"), [""])
sketch9.MapMode = "FlatFace"
sketch9.AttachmentOffset = App.Placement(Vector(0, 0, 835.850116), App.Rotation())
sketch9.addGeometry(Part.LineSegment(Vector(-549.0884, -495, 0), Vector(-579.0884, -495, 0)), False)
sketch9.addGeometry(Part.LineSegment(Vector(-579.0884, -495, 0), Vector(-579.0884, -440, 0)), False)
sketch9.addGeometry(Part.LineSegment(Vector(-579.0884, -440, 0), Vector(-459.0884, -440, 0)), False)
sketch9.addGeometry(Part.LineSegment(Vector(-459.0884, -440, 0), Vector(-459.0884, -495, 0)), False)
sketch9.addGeometry(Part.LineSegment(Vector(-459.0884, -495, 0), Vector(-489.0884, -495, 0)), False)
sketch9.addGeometry(Part.LineSegment(Vector(-489.0884, -495, 0), Vector(-489.0884, -470, 0)), False)
sketch9.addGeometry(Part.LineSegment(Vector(-489.0884, -470, 0), Vector(-549.0884, -470, 0)), False)
sketch9.addGeometry(Part.LineSegment(Vector(-549.0884, -470, 0), Vector(-549.0884, -495, 0)), False)
sketch9.addConstraint(Sketcher.Constraint("Coincident", 0, 2, 1, 1))
sketch9.addConstraint(Sketcher.Constraint("Coincident", 1, 2, 2, 1))
sketch9.addConstraint(Sketcher.Constraint("Coincident", 2, 2, 3, 1))
sketch9.addConstraint(Sketcher.Constraint("Coincident", 3, 2, 4, 1))
sketch9.addConstraint(Sketcher.Constraint("Coincident", 4, 2, 5, 1))
sketch9.addConstraint(Sketcher.Constraint("Coincident", 5, 2, 6, 1))
sketch9.addConstraint(Sketcher.Constraint("Coincident", 6, 2, 7, 1))
sketch9.addConstraint(Sketcher.Constraint("Coincident", 7, 2, 0, 1))
sketch9.addConstraint(Sketcher.Constraint("Horizontal", 0))
sketch9.addConstraint(Sketcher.Constraint("Vertical", 1))
sketch9.addConstraint(Sketcher.Constraint("Horizontal", 2))
sketch9.addConstraint(Sketcher.Constraint("Vertical", 3))
sketch9.addConstraint(Sketcher.Constraint("Horizontal", 4))
sketch9.addConstraint(Sketcher.Constraint("Vertical", 5))
sketch9.addConstraint(Sketcher.Constraint("Horizontal", 6))
sketch9.addConstraint(Sketcher.Constraint("Vertical", 7))
sketch9.addConstraint(Sketcher.Constraint("Horizontal", 0, 2, 3, 2))
sketch9.addConstraint(Sketcher.Constraint("Equal", 0, 4))
sketch9.addConstraint(Sketcher.Constraint("DistanceX", 0, 2, 0, 1, Q("30 mm")))
sketch9.addConstraint(Sketcher.Constraint("DistanceX", 2, 1, 2, 2, Q("120 mm")))
sketch9.addConstraint(Sketcher.Constraint("DistanceY", 1, 1, 1, 2, Q("55 mm")))
sketch9.addConstraint(Sketcher.Constraint("DistanceY", 5, 1, 5, 2, Q("25 mm")))
sketch9.addConstraint(Sketcher.Constraint("DistanceY", 0, 2, -1, 1, Q("495 mm")))
sketch9.addConstraint(Sketcher.Constraint("DistanceX", 0, 2, -1, 1, Q("579.0884 mm")))
pad6 = body.newObject("PartDesign::Pad", "Pad005")
pad6.Profile = sketch9
pad6.Length = 210
pad6.Reversed = True

# Sketch on YZ plane
sketch10 = body.newObject("Sketcher::SketchObject", "Sketch009")
sketch10.AttachmentSupport = (doc.getObject("YZ_Plane"), [""])
sketch10.MapMode = "FlatFace"
sketch10.AttachmentOffset = App.Placement(Vector(0, 0, -514.0884), App.Rotation())
sketch10.addGeometry(Part.LineSegment(Vector(-495, 950.850116, 0), Vector(-495, 920.850116, 0)), False)
sketch10.addGeometry(Part.LineSegment(Vector(-495, 920.850116, 0), Vector(-440, 920.850116, 0)), False)
sketch10.addGeometry(Part.LineSegment(Vector(-440, 920.850116, 0), Vector(-440, 1040.850116, 0)), False)
sketch10.addGeometry(Part.LineSegment(Vector(-440, 1040.850116, 0), Vector(-495, 1040.850116, 0)), False)
sketch10.addGeometry(Part.LineSegment(Vector(-495, 1040.850116, 0), Vector(-495, 1010.850116, 0)), False)
sketch10.addGeometry(Part.LineSegment(Vector(-495, 1010.850116, 0), Vector(-470, 1010.850116, 0)), False)
sketch10.addGeometry(Part.LineSegment(Vector(-470, 1010.850116, 0), Vector(-470, 950.850116, 0)), False)
sketch10.addGeometry(Part.LineSegment(Vector(-470, 950.850116, 0), Vector(-495, 950.850116, 0)), False)
sketch10.addConstraint(Sketcher.Constraint("Coincident", 0, 2, 1, 1))
sketch10.addConstraint(Sketcher.Constraint("Coincident", 1, 2, 2, 1))
sketch10.addConstraint(Sketcher.Constraint("Coincident", 2, 2, 3, 1))
sketch10.addConstraint(Sketcher.Constraint("Coincident", 3, 2, 4, 1))
sketch10.addConstraint(Sketcher.Constraint("Coincident", 4, 2, 5, 1))
sketch10.addConstraint(Sketcher.Constraint("Coincident", 5, 2, 6, 1))
sketch10.addConstraint(Sketcher.Constraint("Coincident", 6, 2, 7, 1))
sketch10.addConstraint(Sketcher.Constraint("Coincident", 7, 2, 0, 1))
sketch10.addConstraint(Sketcher.Constraint("Vertical", 0))
sketch10.addConstraint(Sketcher.Constraint("Horizontal", 1))
sketch10.addConstraint(Sketcher.Constraint("Vertical", 2))
sketch10.addConstraint(Sketcher.Constraint("Horizontal", 3))
sketch10.addConstraint(Sketcher.Constraint("Vertical", 4))
sketch10.addConstraint(Sketcher.Constraint("Horizontal", 5))
sketch10.addConstraint(Sketcher.Constraint("Vertical", 6))
sketch10.addConstraint(Sketcher.Constraint("Horizontal", 7))
sketch10.addConstraint(Sketcher.Constraint("Vertical", 0, 2, 3, 2))
sketch10.addConstraint(Sketcher.Constraint("Equal", 0, 4))
sketch10.addConstraint(Sketcher.Constraint("DistanceX", 1, 1, 1, 2, Q("55 mm")))
sketch10.addConstraint(Sketcher.Constraint("DistanceX", 5, 1, 5, 2, Q("25 mm")))
sketch10.addConstraint(Sketcher.Constraint("DistanceY", 0, 2, 0, 1, Q("30 mm")))
sketch10.addConstraint(Sketcher.Constraint("DistanceY", 2, 1, 2, 2, Q("120 mm")))
sketch10.addConstraint(Sketcher.Constraint("DistanceX", 0, 2, -1, 1, Q("495 mm")))
sketch10.addConstraint(Sketcher.Constraint("DistanceY", -1, 1, 0, 2, Q("920.850116 mm")))
pad7 = body.newObject("PartDesign::Pad", "Pad006")
pad7.Profile = sketch10
pad7.Length = 490
doc.recompute()

datumplane3 = body.newObject("PartDesign::Plane", "DatumPlane002")
datumplane3.AttachmentSupport = (doc.getObject("XY_Plane"), [""])
datumplane3.MapMode = "FlatFace"
datumplane3.AttachmentOffset = App.Placement(Vector(0, 0, 730.850116), App.Rotation())
mirrored3 = body.newObject("PartDesign::Mirrored", "Mirrored002")
mirrored3.Originals = [pad7]
mirrored3.MirrorPlane = (datumplane3, [""])
body.Tip = mirrored3

doc.recompute()
